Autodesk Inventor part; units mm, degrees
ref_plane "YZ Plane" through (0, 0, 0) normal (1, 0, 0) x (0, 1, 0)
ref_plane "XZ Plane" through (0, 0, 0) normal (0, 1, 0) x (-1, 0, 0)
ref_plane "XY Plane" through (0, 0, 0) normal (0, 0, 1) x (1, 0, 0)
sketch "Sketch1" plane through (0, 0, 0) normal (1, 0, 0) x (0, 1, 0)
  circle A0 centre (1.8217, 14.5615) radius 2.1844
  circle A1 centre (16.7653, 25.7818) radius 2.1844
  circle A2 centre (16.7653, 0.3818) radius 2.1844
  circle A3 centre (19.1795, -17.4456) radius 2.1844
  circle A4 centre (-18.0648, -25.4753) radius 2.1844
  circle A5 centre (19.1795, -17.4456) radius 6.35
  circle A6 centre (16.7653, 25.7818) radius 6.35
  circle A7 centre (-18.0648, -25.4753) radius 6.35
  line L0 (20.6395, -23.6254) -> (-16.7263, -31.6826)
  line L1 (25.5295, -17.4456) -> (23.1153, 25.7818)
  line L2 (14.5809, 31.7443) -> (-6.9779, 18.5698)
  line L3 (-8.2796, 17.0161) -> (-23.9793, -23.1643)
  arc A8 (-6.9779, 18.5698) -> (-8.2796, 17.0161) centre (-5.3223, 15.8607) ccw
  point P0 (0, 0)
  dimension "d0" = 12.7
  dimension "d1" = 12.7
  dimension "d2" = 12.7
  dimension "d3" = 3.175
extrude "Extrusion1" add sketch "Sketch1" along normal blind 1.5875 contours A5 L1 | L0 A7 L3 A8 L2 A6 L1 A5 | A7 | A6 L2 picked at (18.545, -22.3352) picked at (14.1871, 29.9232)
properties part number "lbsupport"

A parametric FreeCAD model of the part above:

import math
import FreeCAD as App
import Part
import Sketcher
Q = App.Units.Quantity

doc = App.newDocument("Part")
body = doc.addObject("PartDesign::Body", "Body")

# Sketch on YZ plane
sketch1 = body.newObject("Sketcher::SketchObject", "Sketch")
sketch1.AttachmentSupport = (doc.getObject("YZ_Plane"), [""])
sketch1.MapMode = "FlatFace"
sketch1.addGeometry([
    Part.LineSegment(App.Vector(25.5295, -17.4456, 0), App.Vector(23.1153, 25.7818, 0)),  # 0
    Part.ArcOfCircle(Part.Circle(App.Vector(16.7653, 25.7818, 0), App.Vector(0, 0, 1), 6.35), math.radians(0), math.radians(110.120631)),  # 1
    Part.LineSegment(App.Vector(14.5809, 31.7443, 0), App.Vector(-6.9779, 18.5698, 0)),  # 2
    Part.ArcOfCircle(Part.Circle(App.Vector(-5.3223, 15.8607, 0), App.Vector(0, 0, 1), 3.174938), math.radians(121.430164), math.radians(158.6597)),  # 3
    Part.LineSegment(App.Vector(-8.2796, 17.0161, 0), App.Vector(-23.9793, -23.1643, 0)),  # 4
    Part.ArcOfCircle(Part.Circle(App.Vector(-18.0648, -25.4753, 0), App.Vector(0, 0, 1), 6.35), math.radians(158.657691), math.radians(282.168553)),  # 5
    Part.LineSegment(App.Vector(-16.7263, -31.6826, 0), App.Vector(20.6395, -23.6254, 0)),  # 6
    Part.ArcOfCircle(Part.Circle(App.Vector(19.1795, -17.4456, 0), App.Vector(0, 0, 1), 6.35), math.radians(-76.707401), math.radians(0)),  # 7
    Part.Circle(App.Vector(19.1795, -17.4456, 0), App.Vector(0, 0, 1), 2.1844),  # 8
    Part.Circle(App.Vector(16.7653, 0.3818, 0), App.Vector(0, 0, 1), 2.1844),  # 9
    Part.Circle(App.Vector(1.8217, 14.5615, 0), App.Vector(0, 0, 1), 2.1844),  # 10
    Part.Circle(App.Vector(-18.0648, -25.4753, 0), App.Vector(0, 0, 1), 2.1844),  # 11
    Part.Circle(App.Vector(16.7653, 25.7818, 0), App.Vector(0, 0, 1), 2.1844),  # 12
], False)
sketch1.addConstraint([
    Sketcher.Constraint("Coincident", 0, 2, 1, 1),
    Sketcher.Constraint("Coincident", 1, 2, 2, 1),
    Sketcher.Constraint("Coincident", 2, 2, 3, 1),
    Sketcher.Constraint("Coincident", 3, 2, 4, 1),
    Sketcher.Constraint("Coincident", 4, 2, 5, 1),
    Sketcher.Constraint("Coincident", 5, 2, 6, 1),
    Sketcher.Constraint("Coincident", 6, 2, 7, 1),
    Sketcher.Constraint("Coincident", 7, 2, 0, 1),
    Sketcher.Constraint("Coincident", 8, 3, 7, 3),
    Sketcher.Constraint("Coincident", 11, 3, 5, 3),
    Sketcher.Constraint("Coincident", 12, 3, 1, 3),
    Sketcher.Constraint("Radius", 1, Q("0.25 in")),
    Sketcher.Constraint("Radius", 5, Q("0.25 in")),
    Sketcher.Constraint("Radius", 7, Q("0.25 in")),
    Sketcher.Constraint("Radius", 3, Q("0.125 in")),
    Sketcher.Constraint("Diameter", 8, Q("0.172 in")),
    Sketcher.Constraint("Diameter", 9, Q("0.172 in")),
    Sketcher.Constraint("Diameter", 10, Q("0.172 in")),
    Sketcher.Constraint("Diameter", 11, Q("0.172 in")),
    Sketcher.Constraint("Diameter", 12, Q("0.172 in")),
    Sketcher.Constraint("DistanceY", 9, 3, 1, 3, Q("1 in")),
    Sketcher.Constraint("DistanceY", 9, 3, 0, 2, Q("1 in")),
    Sketcher.Constraint("DistanceX", 9, 3, 0, 2, Q("0.25 in")),
    Sketcher.Constraint("DistanceY", 5, 3, 1, 3, Q("2.018 in")),
    Sketcher.Constraint("DistanceX", 1, 2, 1, 3, Q("0.086 in")),
    Sketcher.Constraint("Distance", 2, Q("0.9947 in")),
    Sketcher.Constraint("Distance", 6, Q("1.5049 in")),
    Sketcher.Constraint("DistanceX", -1, 1, 7, 3, Q("0.7551 in")),
    Sketcher.Constraint("DistanceY", -1, 1, 2, 2, Q("0.7311 in")),
    Sketcher.Constraint("DistanceX", 3, 3, 1, 3, Q("0.8696 in")),
    Sketcher.Constraint("DistanceY", 3, 3, 1, 3, Q("0.3906 in")),
    Sketcher.Constraint("DistanceX", 5, 3, 7, 3, Q("1.4663 in")),
    Sketcher.Constraint("DistanceY", 10, 3, 2, 2, Q("0.1578 in")),
    Sketcher.Constraint("DistanceY", 3, 2, 1, 3, Q("0.3451 in")),
    Sketcher.Constraint("DistanceX", 4, 2, 3, 2, Q("0.6181 in")),
    Sketcher.Constraint("DistanceY", 4, 2, 3, 2, Q("1.5819 in")),
    Sketcher.Constraint("DistanceX", 5, 3, 5, 2, Q("0.0527 in")),
    Sketcher.Constraint("DistanceY", 6, 2, 7, 3, Q("0.2433 in")),
    Sketcher.Constraint("DistanceY", 6, 2, 7, 2, Q("0.2433 in")),
    Sketcher.Constraint("DistanceX", -1, 1, 10, 3, 1.8217),
])
pad1 = body.newObject("PartDesign::Pad", "Pad")
pad1.Profile = sketch1
pad1.Length = Q("0.0625 in")

doc.recompute()
